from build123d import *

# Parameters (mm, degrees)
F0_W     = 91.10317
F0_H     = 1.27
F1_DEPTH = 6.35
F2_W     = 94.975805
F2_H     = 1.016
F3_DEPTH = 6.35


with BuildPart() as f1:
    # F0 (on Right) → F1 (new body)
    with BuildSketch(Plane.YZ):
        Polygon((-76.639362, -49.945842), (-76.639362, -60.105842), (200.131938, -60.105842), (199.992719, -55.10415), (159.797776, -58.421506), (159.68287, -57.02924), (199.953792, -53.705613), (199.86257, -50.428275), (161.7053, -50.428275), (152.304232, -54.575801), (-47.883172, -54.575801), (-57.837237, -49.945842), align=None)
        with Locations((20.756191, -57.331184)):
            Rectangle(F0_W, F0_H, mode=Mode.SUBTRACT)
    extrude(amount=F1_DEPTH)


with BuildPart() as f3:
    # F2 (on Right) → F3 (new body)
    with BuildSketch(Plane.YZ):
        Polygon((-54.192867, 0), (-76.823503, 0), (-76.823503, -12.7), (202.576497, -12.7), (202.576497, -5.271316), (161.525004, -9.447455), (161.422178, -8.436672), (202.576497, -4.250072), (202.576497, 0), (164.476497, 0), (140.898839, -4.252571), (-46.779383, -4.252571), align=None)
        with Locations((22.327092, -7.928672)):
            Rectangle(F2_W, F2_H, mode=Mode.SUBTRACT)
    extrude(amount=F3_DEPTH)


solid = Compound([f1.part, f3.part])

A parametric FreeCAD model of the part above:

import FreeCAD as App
import Part
import Sketcher

V = App.Vector
Q = App.Units.Quantity


def add_polygon(sketch, points):
    """Adds a closed chain of lines whose ends are joined by coincident constraints."""
    first, n = sketch.GeometryCount, len(points)
    for a, b in zip(points, points[1:] + points[:1]):
        sketch.addGeometry(Part.LineSegment(App.Vector(*a, 0), App.Vector(*b, 0)), False)
    for i in range(n):
        sketch.addConstraint(Sketcher.Constraint("Coincident", first + i, 2, first + (i + 1) % n, 1))

doc = App.newDocument("Part")
body = doc.addObject("PartDesign::Body", "Body")

# Sketch on YZ plane
sketch1 = body.newObject("Sketcher::SketchObject", "Sketch")
sketch1.AttachmentSupport = (doc.getObject("YZ_Plane"), [""])
sketch1.MapMode = "FlatFace"
add_polygon(sketch1, [(-76.6, -49.9), (-76.6, -60.1), (200.1, -60.1), (200, -55.1), (159.8, -58.4), (159.7, -57), (200, -53.7), (199.9, -50.4), (161.7, -50.4), (152.3, -54.6), (-47.9, -54.6), (-57.8, -49.9)])  # lines 0-11
add_polygon(sketch1, [(66.3, -58), (-24.8, -58), (-24.8, -56.7), (66.3, -56.7)])  # lines 12-15
sketch1.addConstraint(Sketcher.Constraint("Vertical", 0))
sketch1.addConstraint(Sketcher.Constraint("Horizontal", 1))
sketch1.addConstraint(Sketcher.Constraint("Horizontal", 7))
sketch1.addConstraint(Sketcher.Constraint("Horizontal", 9))
sketch1.addConstraint(Sketcher.Constraint("Horizontal", 11))
sketch1.addConstraint(Sketcher.Constraint("Horizontal", 12))
sketch1.addConstraint(Sketcher.Constraint("Vertical", 13))
sketch1.addConstraint(Sketcher.Constraint("Horizontal", 14))
sketch1.addConstraint(Sketcher.Constraint("Vertical", 15))
sketch1.addConstraint(Sketcher.Constraint("Perpendicular", 3, 4))
sketch1.addConstraint(Sketcher.Constraint("Perpendicular", 4, 5))
sketch1.addConstraint(Sketcher.Constraint("Parallel", 2, 6))
sketch1.addConstraint(Sketcher.Constraint("DistanceY", 0, 2, 0, 1, Q("0.4 in")))
sketch1.addConstraint(Sketcher.Constraint("DistanceY", 13, 1, 13, 2, Q("0.05 in")))
sketch1.addConstraint(Sketcher.Constraint("Distance", 4, Q("0.055 in")))
sketch1.addConstraint(Sketcher.Constraint("DistanceX", 1, 1, 1, 2, 276.7713))
sketch1.addConstraint(Sketcher.Constraint("DistanceX", 7, 2, 7, 1, 38.15727))
sketch1.addConstraint(Sketcher.Constraint("DistanceX", 12, 2, 12, 1, 91.10317))
sketch1.addConstraint(Sketcher.Constraint("DistanceX", -1, 1, 7, 2, 161.7053))
sketch1.addConstraint(Sketcher.Constraint("DistanceY", 8, 2, -1, 1, 54.575801))
sketch1.addConstraint(Sketcher.Constraint("DistanceX", 4, 2, 6, 2, 40.1797))
sketch1.addConstraint(Sketcher.Constraint("DistanceY", 4, 2, 10, 2, 7.083398))
sketch1.addConstraint(Sketcher.Constraint("DistanceX", 14, 2, 3, 2, 93.49))
sketch1.addConstraint(Sketcher.Constraint("Distance", 2, 5.003629))
sketch1.addConstraint(Sketcher.Constraint("Distance", 5, 40.407842))
sketch1.addConstraint(Sketcher.Constraint("DistanceX", 9, 2, 9, 1, 200.187404))
sketch1.addConstraint(Sketcher.Constraint("DistanceX", 11, 2, 11, 1, 18.802125))
sketch1.addConstraint(Sketcher.Constraint("DistanceX", -1, 1, 1, 2, 200.131938))
sketch1.addConstraint(Sketcher.Constraint("DistanceX", -1, 1, 2, 2, 199.992719))
sketch1.addConstraint(Sketcher.Constraint("DistanceY", 2, 2, -1, 1, 55.10415))
sketch1.addConstraint(Sketcher.Constraint("DistanceX", 8, 2, 5, 2, 47.64956))
sketch1.addConstraint(Sketcher.Constraint("DistanceY", 0, 2, 12, 2, 2.139658))
pad1 = body.newObject("PartDesign::Pad", "Pad")
pad1.Profile = sketch1
pad1.Length = Q("0.25 in")
body2 = doc.addObject("PartDesign::Body", "Body001")

# Sketch on YZ plane
sketch2 = body2.newObject("Sketcher::SketchObject", "Sketch001")
sketch2.AttachmentSupport = (doc.getObject("YZ_Plane001"), [""])
sketch2.MapMode = "FlatFace"
add_polygon(sketch2, [(-54.2, 0), (-76.8, 0), (-76.8, -12.7), (202.6, -12.7), (202.6, -5.3), (161.5, -9.4), (161.4, -8.4), (202.6, -4.3), (202.6, 0), (164.5, 0), (140.9, -4.3), (-46.8, -4.3)])  # lines 0-11
add_polygon(sketch2, [(69.8, -8.4), (-25.2, -8.4), (-25.2, -7.4), (69.8, -7.4)])  # lines 12-15
sketch2.addConstraint(Sketcher.Constraint("Horizontal", 0))
sketch2.addConstraint(Sketcher.Constraint("Vertical", 1))
sketch2.addConstraint(Sketcher.Constraint("Horizontal", 2))
sketch2.addConstraint(Sketcher.Constraint("Vertical", 3))
sketch2.addConstraint(Sketcher.Constraint("Vertical", 7))
sketch2.addConstraint(Sketcher.Constraint("Horizontal", 8))
sketch2.addConstraint(Sketcher.Constraint("Horizontal", 10))
sketch2.addConstraint(Sketcher.Constraint("Horizontal", 12))
sketch2.addConstraint(Sketcher.Constraint("Vertical", 13))
sketch2.addConstraint(Sketcher.Constraint("Horizontal", 14))
sketch2.addConstraint(Sketcher.Constraint("Vertical", 15))
sketch2.addConstraint(Sketcher.Constraint("PointOnObject", 0, 2, -1))
sketch2.addConstraint(Sketcher.Constraint("PointOnObject", 7, 2, -1))
sketch2.addConstraint(Sketcher.Constraint("Perpendicular", 4, 5))
sketch2.addConstraint(Sketcher.Constraint("Perpendicular", 5, 6))
sketch2.addConstraint(Sketcher.Constraint("Horizontal", 5, 2, 12, 2))
sketch2.addConstraint(Sketcher.Constraint("Vertical", 3, 2, 6, 2))
sketch2.addConstraint(Sketcher.Constraint("DistanceX", 2, 1, 2, 2, Q("11 in")))
sketch2.addConstraint(Sketcher.Constraint("DistanceX", 8, 2, 8, 1, Q("1.5 in")))
sketch2.addConstraint(Sketcher.Constraint("DistanceY", 1, 2, 1, 1, Q("0.5 in")))
sketch2.addConstraint(Sketcher.Constraint("DistanceY", 13, 1, 13, 2, Q("0.04 in")))
sketch2.addConstraint(Sketcher.Constraint("Distance", 5, Q("0.04 in")))
sketch2.addConstraint(Sketcher.Constraint("DistanceX", 10, 2, 10, 1, 187.678222))
sketch2.addConstraint(Sketcher.Constraint("DistanceY", 5, 2, 6, 2, 4.1866))
sketch2.addConstraint(Sketcher.Constraint("DistanceY", 5, 2, 9, 2, 4.184101))
sketch2.addConstraint(Sketcher.Constraint("Distance", 6, 41.366721))
sketch2.addConstraint(Sketcher.Constraint("DistanceX", 0, 2, 0, 1, 22.630636))
sketch2.addConstraint(Sketcher.Constraint("DistanceX", 12, 2, 12, 1, 94.975805))
sketch2.addConstraint(Sketcher.Constraint("DistanceY", 3, 1, 3, 2, 7.428684))
sketch2.addConstraint(Sketcher.Constraint("DistanceX", -1, 1, 5, 2, 161.422178))
sketch2.addConstraint(Sketcher.Constraint("DistanceX", -1, 1, 9, 2, 140.898839))
sketch2.addConstraint(Sketcher.Constraint("DistanceX", 12, 2, -1, 1, 25.160811))
pad2 = body2.newObject("PartDesign::Pad", "Pad001")
pad2.Profile = sketch2
pad2.Length = Q("0.25 in")

doc.recompute()
